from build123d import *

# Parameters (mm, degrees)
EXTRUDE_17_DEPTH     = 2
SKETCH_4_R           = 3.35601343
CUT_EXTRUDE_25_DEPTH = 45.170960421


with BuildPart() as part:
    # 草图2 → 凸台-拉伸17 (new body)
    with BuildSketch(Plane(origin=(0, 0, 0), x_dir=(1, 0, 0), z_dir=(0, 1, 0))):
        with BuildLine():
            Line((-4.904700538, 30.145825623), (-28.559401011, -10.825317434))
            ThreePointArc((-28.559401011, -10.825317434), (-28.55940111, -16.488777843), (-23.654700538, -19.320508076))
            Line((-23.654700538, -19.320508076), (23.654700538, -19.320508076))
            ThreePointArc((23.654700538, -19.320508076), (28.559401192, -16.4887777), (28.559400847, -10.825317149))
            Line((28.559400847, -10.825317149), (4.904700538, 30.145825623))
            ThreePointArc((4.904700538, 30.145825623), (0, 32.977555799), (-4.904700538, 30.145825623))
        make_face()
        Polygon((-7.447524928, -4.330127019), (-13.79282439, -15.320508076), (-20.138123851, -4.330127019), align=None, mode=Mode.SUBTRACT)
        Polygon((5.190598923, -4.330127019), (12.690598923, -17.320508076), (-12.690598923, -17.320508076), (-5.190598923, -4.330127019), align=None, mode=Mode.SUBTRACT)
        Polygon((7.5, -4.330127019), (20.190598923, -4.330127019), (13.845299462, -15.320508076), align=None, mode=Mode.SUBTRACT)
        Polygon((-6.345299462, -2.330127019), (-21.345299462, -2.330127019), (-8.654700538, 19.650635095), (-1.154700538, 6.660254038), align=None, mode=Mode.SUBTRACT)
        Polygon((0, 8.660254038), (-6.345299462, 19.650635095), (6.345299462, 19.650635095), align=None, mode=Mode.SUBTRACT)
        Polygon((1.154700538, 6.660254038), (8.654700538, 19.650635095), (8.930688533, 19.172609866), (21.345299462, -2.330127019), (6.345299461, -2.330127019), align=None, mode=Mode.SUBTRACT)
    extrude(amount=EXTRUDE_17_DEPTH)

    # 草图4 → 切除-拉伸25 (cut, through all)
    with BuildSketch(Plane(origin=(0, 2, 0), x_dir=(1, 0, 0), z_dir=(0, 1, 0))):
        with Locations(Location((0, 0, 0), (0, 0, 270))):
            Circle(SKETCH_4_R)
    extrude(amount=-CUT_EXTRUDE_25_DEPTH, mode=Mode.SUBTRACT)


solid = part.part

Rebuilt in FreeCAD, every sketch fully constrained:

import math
import FreeCAD as App
import Part
import Sketcher

V = App.Vector
Q = App.Units.Quantity


def add_polygon(sketch, points):
    """Adds a closed chain of lines whose ends are joined by coincident constraints."""
    first, n = sketch.GeometryCount, len(points)
    for a, b in zip(points, points[1:] + points[:1]):
        sketch.addGeometry(Part.LineSegment(App.Vector(*a, 0), App.Vector(*b, 0)), False)
    for i in range(n):
        sketch.addConstraint(Sketcher.Constraint("Coincident", first + i, 2, first + (i + 1) % n, 1))

doc = App.newDocument("Part")
params = doc.addObject("Spreadsheet::Sheet", "Params")
for row, (alias, value) in enumerate([
    ("sketch1_width", "15 mm"),
    ("pad1_length", "2 mm"),
], start=1):
    params.set(f"A{row}", alias)
    params.set(f"B{row}", "=" + value)
    params.setAlias(f"B{row}", alias)

body = doc.addObject("PartDesign::Body", "Body")

sketch1 = body.newObject("Sketcher::SketchObject", "Sketch")
sketch1.AttachmentSupport = (doc.getObject("XZ_Plane"), [""])
sketch1.MapMode = "FlatFace"
sketch1.addGeometry(Part.LineSegment(V(-4.9, -30.1, 0), V(-28.6, 10.8, 0)), False)
sketch1.addGeometry(Part.ArcOfCircle(Part.Circle(V(-23.7, 13.7, 0), V(0, 0, 1), 5.7), math.radians(90), math.radians(210)), False)
sketch1.addGeometry(Part.LineSegment(V(-23.7, 19.3, 0), V(23.7, 19.3, 0)), False)
sketch1.addGeometry(Part.ArcOfCircle(Part.Circle(V(23.7, 13.7, 0), V(0, 0, 1), 5.7), math.radians(-30), math.radians(90)), False)
sketch1.addGeometry(Part.LineSegment(V(28.6, 10.8, 0), V(4.9, -30.1, 0)), False)
sketch1.addGeometry(Part.ArcOfCircle(Part.Circle(V(0, -27.3, 0), V(0, 0, 1), 5.7), math.radians(-150), math.radians(-30)), False)
add_polygon(sketch1, [(-20.1, 4.3), (-7.4, 4.3), (-13.8, 15.3)])
add_polygon(sketch1, [(-5.2, 4.3), (5.2, 4.3), (12.7, 17.3), (-12.7, 17.3)])
add_polygon(sketch1, [(13.8, 15.3), (7.5, 4.3), (20.2, 4.3)])
add_polygon(sketch1, [(-1.2, -6.7), (-6.3, 2.3), (-21.3, 2.3), (-8.7, -19.7)])
add_polygon(sketch1, [(6.3, 2.3), (1.2, -6.7), (8.7, -19.7), (8.9, -19.2), (21.3, 2.3)])
add_polygon(sketch1, [(6.3, -19.7), (0, -8.7), (-6.3, -19.7)])
sketch1.addConstraint(Sketcher.Constraint("Tangent", 0, 2, 1, 2))
sketch1.addConstraint(Sketcher.Constraint("Tangent", 1, 1, 2, 1))
sketch1.addConstraint(Sketcher.Constraint("Tangent", 2, 2, 3, 2))
sketch1.addConstraint(Sketcher.Constraint("Tangent", 3, 1, 4, 1))
sketch1.addConstraint(Sketcher.Constraint("Tangent", 4, 2, 5, 2))
sketch1.addConstraint(Sketcher.Constraint("Tangent", 5, 1, 0, 1))
sketch1.addConstraint(Sketcher.Constraint("Horizontal", 2))
sketch1.addConstraint(Sketcher.Constraint("Horizontal", 6))
sketch1.addConstraint(Sketcher.Constraint("Horizontal", 9))
sketch1.addConstraint(Sketcher.Constraint("Horizontal", 11))
sketch1.addConstraint(Sketcher.Constraint("Horizontal", 14))
sketch1.addConstraint(Sketcher.Constraint("Horizontal", 17))
sketch1.addConstraint(Sketcher.Constraint("Horizontal", 24))
sketch1.addConstraint(Sketcher.Constraint("Horizontal", 27))
sketch1.addConstraint(Sketcher.Constraint("Equal", 1, 3))
sketch1.addConstraint(Sketcher.Constraint("Equal", 3, 5))
sketch1.addConstraint(Sketcher.Constraint("Symmetric", 0, 2, 3, 1, -2))
sketch1.addConstraint(Sketcher.Constraint("Symmetric", 19, 2, 20, 2, -2))
sketch1.addConstraint(Sketcher.Constraint("Symmetric", 18, 2, 21, 2, -2))
sketch1.addConstraint(Sketcher.Constraint("Symmetric", 17, 2, 23, 2, -2))
sketch1.addConstraint(Sketcher.Constraint("PointOnObject", 25, 2, -2))
sketch1.addConstraint(Sketcher.Constraint("Parallel", 0, 7))
sketch1.addConstraint(Sketcher.Constraint("Parallel", 4, 8))
sketch1.addConstraint(Sketcher.Constraint("Parallel", 8, 10))
sketch1.addConstraint(Sketcher.Constraint("Parallel", 7, 12))
sketch1.addConstraint(Sketcher.Constraint("Parallel", 10, 13))
sketch1.addConstraint(Sketcher.Constraint("Parallel", 12, 15))
sketch1.addConstraint(Sketcher.Constraint("Parallel", 15, 16))
sketch1.addConstraint(Sketcher.Constraint("Parallel", 16, 18))
sketch1.addConstraint(Sketcher.Constraint("Parallel", 13, 19))
sketch1.addConstraint(Sketcher.Constraint("Parallel", 19, 20))
sketch1.addConstraint(Sketcher.Constraint("Parallel", 20, 22))
sketch1.addConstraint(Sketcher.Constraint("Parallel", 21, 25))
sketch1.addConstraint(Sketcher.Constraint("Parallel", 23, 26))
sketch1.addConstraint(Sketcher.Constraint("Horizontal", 8, 2, 9, 2))
sketch1.addConstraint(Sketcher.Constraint("Horizontal", 12, 2, 13, 2))
sketch1.addConstraint(Sketcher.Constraint("Horizontal", 7, 2, 15, 2))
sketch1.addConstraint(Sketcher.Constraint("Horizontal", 21, 2, 26, 2))
sketch1.addConstraint(Sketcher.Constraint("Vertical", 16, 2, 26, 2))
sketch1.addConstraint(Sketcher.Constraint("Equal", 14, 27))
sketch1.addConstraint(Sketcher.Constraint("Equal", 12, 19))
sketch1.addConstraint(Sketcher.Constraint("DistanceX", 17, 2, 17, 1, Q("15 mm")))
sketch1.addConstraint(Sketcher.Constraint("Angle", 0, Q("120 deg")))
sketch1.addConstraint(Sketcher.Constraint("DistanceY", 7, 2, 1, 1, Q("4 mm")))
sketch1.addConstraint(Sketcher.Constraint("DistanceY", 10, 2, 2, 2, Q("2 mm")))
sketch1.addConstraint(Sketcher.Constraint("DistanceX", 9, 2, 14, 2, Q("15 mm")))
sketch1.addConstraint(Sketcher.Constraint("DistanceY", 16, 2, 6, 2, Q("2 mm")))
sketch1.addConstraint(Sketcher.Constraint("DistanceX", -1, 1, 13, 2, Q("7.5 mm")))
sketch1.addConstraint(Sketcher.Constraint("DistanceX", 16, 2, 20, 2, Q("7.5 mm")))
sketch1.addConstraint(Sketcher.Constraint("Radius", 1, Q("5.66346 mm")))
sketch1.addConstraint(Sketcher.Constraint("DistanceX", 4, 2, 3, 3, Q("18.75 mm")))
sketch1.addConstraint(Sketcher.Constraint("DistanceX", 11, 2, -1, 1, Q("12.690599 mm")))
sketch1.addConstraint(Sketcher.Constraint("Distance", 23, Q("24.829222 mm")))
sketch1.addConstraint(Sketcher.Constraint("DistanceY", -1, 1, 1, 1, Q("19.320508 mm")))
sketch1.addConstraint(Sketcher.Constraint("DistanceX", 6, 2, -1, 1, Q("7.447525 mm")))
sketch1.setExpression("Constraints[63]", "Params.sketch1_width")
pad1 = body.newObject("PartDesign::Pad", "Pad")
pad1.Profile = sketch1
pad1.setExpression("Length", "Params.pad1_length")
pad1.Reversed = True

sketch2 = body.newObject("Sketcher::SketchObject", "Sketch001")
sketch2.AttachmentSupport = (doc.getObject("XZ_Plane"), [""])
sketch2.MapMode = "FlatFace"
sketch2.AttachmentOffset = App.Placement(V(0, 0, -2), App.Rotation())
sketch2.addGeometry(Part.Circle(V(0, 0, 0), V(0, 0, 1), 3.4), False)
sketch2.addConstraint(Sketcher.Constraint("Coincident", 0, 3, -1, 1))
sketch2.addConstraint(Sketcher.Constraint("Diameter", 0, Q("6.712027 mm")))
pocket1 = body.newObject("PartDesign::Pocket", "Pocket")
pocket1.Profile = sketch2
pocket1.Type = "ThroughAll"
pocket1.Reversed = True

doc.recompute()
